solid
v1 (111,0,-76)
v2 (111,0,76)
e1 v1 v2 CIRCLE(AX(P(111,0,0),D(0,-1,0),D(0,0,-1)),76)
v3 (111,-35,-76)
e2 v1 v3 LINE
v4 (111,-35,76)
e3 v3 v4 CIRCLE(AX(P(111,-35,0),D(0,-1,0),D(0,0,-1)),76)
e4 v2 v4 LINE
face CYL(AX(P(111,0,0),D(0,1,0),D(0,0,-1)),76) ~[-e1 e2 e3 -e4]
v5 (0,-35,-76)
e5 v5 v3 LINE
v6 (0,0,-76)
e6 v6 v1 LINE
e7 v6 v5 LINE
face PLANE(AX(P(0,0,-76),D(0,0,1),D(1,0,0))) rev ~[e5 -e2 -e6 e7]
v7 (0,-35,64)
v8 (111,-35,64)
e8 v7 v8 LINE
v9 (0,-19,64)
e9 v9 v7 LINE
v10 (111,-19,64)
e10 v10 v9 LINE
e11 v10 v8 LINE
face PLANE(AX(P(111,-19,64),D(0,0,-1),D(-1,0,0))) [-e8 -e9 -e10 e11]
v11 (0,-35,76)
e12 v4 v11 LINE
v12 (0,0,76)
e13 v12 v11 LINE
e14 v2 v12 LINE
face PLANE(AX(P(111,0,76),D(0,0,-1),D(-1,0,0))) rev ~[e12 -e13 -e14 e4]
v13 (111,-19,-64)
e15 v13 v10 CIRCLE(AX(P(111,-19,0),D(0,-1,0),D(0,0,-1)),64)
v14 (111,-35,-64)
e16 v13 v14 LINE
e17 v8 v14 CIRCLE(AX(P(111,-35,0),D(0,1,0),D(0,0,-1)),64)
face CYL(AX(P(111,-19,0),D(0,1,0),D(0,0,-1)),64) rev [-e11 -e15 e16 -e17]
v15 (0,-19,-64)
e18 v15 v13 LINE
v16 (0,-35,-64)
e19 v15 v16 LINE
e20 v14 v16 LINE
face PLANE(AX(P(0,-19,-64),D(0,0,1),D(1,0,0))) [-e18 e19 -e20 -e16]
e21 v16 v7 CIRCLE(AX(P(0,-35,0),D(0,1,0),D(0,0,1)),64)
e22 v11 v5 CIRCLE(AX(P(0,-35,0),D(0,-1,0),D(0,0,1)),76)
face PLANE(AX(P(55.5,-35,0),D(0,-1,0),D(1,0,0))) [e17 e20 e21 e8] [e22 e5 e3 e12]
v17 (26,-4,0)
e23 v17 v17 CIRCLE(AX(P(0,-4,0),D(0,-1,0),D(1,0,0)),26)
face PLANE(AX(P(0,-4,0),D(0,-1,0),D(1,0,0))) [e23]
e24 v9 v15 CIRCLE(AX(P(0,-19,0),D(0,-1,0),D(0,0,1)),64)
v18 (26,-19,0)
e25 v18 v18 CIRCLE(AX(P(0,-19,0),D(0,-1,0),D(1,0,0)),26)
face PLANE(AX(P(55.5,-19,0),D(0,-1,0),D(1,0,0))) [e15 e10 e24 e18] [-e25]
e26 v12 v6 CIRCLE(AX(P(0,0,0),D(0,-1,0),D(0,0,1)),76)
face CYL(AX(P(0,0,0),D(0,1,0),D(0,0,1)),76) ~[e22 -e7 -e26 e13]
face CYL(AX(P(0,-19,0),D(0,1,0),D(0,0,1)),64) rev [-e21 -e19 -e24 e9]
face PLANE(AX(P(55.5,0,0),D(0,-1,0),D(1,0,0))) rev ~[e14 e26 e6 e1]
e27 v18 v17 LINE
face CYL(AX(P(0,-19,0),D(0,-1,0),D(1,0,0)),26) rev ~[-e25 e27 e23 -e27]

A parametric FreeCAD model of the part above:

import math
import FreeCAD as App
import Part
import Sketcher

V = App.Vector

doc = App.newDocument("Part")
body = doc.addObject("PartDesign::Body", "Body")

sketch1 = body.newObject("Sketcher::SketchObject", "Sketch")
sketch1.AttachmentSupport = (doc.getObject("XZ_Plane"), [""])
sketch1.MapMode = "FlatFace"
sketch1.addGeometry(Part.LineSegment(V(111, 76, 0), V(0, 76, 0)), False)
sketch1.addGeometry(Part.ArcOfCircle(Part.Circle(V(0, 0, 0), V(0, 0, 1), 76), math.radians(90), math.radians(270)), False)
sketch1.addGeometry(Part.LineSegment(V(0, -76, 0), V(111, -76, 0)), False)
sketch1.addGeometry(Part.ArcOfCircle(Part.Circle(V(111, 0, 0), V(0, 0, 1), 76), math.radians(-90), math.radians(90)), False)
sketch1.addConstraint(Sketcher.Constraint("Tangent", 0, 2, 1, 1))
sketch1.addConstraint(Sketcher.Constraint("Tangent", 1, 2, 2, 1))
sketch1.addConstraint(Sketcher.Constraint("Tangent", 2, 2, 3, 1))
sketch1.addConstraint(Sketcher.Constraint("Tangent", 3, 2, 0, 1))
sketch1.addConstraint(Sketcher.Constraint("Horizontal", 0))
sketch1.addConstraint(Sketcher.Constraint("Horizontal", 2))
sketch1.addConstraint(Sketcher.Constraint("Coincident", 1, 3, -1, 1))
sketch1.addConstraint(Sketcher.Constraint("Radius", 1, 76.0))
sketch1.addConstraint(Sketcher.Constraint("DistanceX", 0, 2, 0, 1, 111.0))
pad1 = body.newObject("PartDesign::Pad", "Pad")
pad1.Profile = sketch1
pad1.Length = 35

sketch2 = body.newObject("Sketcher::SketchObject", "Sketch001")
sketch2.AttachmentSupport = (doc.getObject("XZ_Plane"), [""])
sketch2.MapMode = "FlatFace"
sketch2.AttachmentOffset = App.Placement(V(0, 0, 19), App.Rotation())
sketch2.addGeometry(Part.LineSegment(V(111, 64, 0), V(0, 64, 0)), False)
sketch2.addGeometry(Part.ArcOfCircle(Part.Circle(V(0, 0, 0), V(0, 0, 1), 64), math.radians(90), math.radians(270)), False)
sketch2.addGeometry(Part.LineSegment(V(0, -64, 0), V(111, -64, 0)), False)
sketch2.addGeometry(Part.ArcOfCircle(Part.Circle(V(111, 0, 0), V(0, 0, 1), 64), math.radians(-90), math.radians(90)), False)
sketch2.addConstraint(Sketcher.Constraint("Tangent", 0, 2, 1, 1))
sketch2.addConstraint(Sketcher.Constraint("Tangent", 1, 2, 2, 1))
sketch2.addConstraint(Sketcher.Constraint("Tangent", 2, 2, 3, 1))
sketch2.addConstraint(Sketcher.Constraint("Tangent", 3, 2, 0, 1))
sketch2.addConstraint(Sketcher.Constraint("Horizontal", 0))
sketch2.addConstraint(Sketcher.Constraint("Horizontal", 2))
sketch2.addConstraint(Sketcher.Constraint("Coincident", 1, 3, -1, 1))
sketch2.addConstraint(Sketcher.Constraint("Radius", 1, 64.0))
sketch2.addConstraint(Sketcher.Constraint("DistanceX", 0, 2, 0, 1, 111.0))
pocket1 = body.newObject("PartDesign::Pocket", "Pocket")
pocket1.Profile = sketch2
pocket1.Length = 19
pocket1.Reversed = True

sketch3 = body.newObject("Sketcher::SketchObject", "Sketch002")
sketch3.AttachmentSupport = (doc.getObject("XZ_Plane"), [""])
sketch3.MapMode = "FlatFace"
sketch3.AttachmentOffset = App.Placement(V(0, 0, 19), App.Rotation())
sketch3.addGeometry(Part.Circle(V(0, 0, 0), V(0, 0, 1), 26), False)
sketch3.addConstraint(Sketcher.Constraint("Coincident", 0, 3, -1, 1))
sketch3.addConstraint(Sketcher.Constraint("Diameter", 0, 52.0))
pocket2 = body.newObject("PartDesign::Pocket", "Pocket001")
pocket2.Profile = sketch3
pocket2.Length = 15

doc.recompute()
